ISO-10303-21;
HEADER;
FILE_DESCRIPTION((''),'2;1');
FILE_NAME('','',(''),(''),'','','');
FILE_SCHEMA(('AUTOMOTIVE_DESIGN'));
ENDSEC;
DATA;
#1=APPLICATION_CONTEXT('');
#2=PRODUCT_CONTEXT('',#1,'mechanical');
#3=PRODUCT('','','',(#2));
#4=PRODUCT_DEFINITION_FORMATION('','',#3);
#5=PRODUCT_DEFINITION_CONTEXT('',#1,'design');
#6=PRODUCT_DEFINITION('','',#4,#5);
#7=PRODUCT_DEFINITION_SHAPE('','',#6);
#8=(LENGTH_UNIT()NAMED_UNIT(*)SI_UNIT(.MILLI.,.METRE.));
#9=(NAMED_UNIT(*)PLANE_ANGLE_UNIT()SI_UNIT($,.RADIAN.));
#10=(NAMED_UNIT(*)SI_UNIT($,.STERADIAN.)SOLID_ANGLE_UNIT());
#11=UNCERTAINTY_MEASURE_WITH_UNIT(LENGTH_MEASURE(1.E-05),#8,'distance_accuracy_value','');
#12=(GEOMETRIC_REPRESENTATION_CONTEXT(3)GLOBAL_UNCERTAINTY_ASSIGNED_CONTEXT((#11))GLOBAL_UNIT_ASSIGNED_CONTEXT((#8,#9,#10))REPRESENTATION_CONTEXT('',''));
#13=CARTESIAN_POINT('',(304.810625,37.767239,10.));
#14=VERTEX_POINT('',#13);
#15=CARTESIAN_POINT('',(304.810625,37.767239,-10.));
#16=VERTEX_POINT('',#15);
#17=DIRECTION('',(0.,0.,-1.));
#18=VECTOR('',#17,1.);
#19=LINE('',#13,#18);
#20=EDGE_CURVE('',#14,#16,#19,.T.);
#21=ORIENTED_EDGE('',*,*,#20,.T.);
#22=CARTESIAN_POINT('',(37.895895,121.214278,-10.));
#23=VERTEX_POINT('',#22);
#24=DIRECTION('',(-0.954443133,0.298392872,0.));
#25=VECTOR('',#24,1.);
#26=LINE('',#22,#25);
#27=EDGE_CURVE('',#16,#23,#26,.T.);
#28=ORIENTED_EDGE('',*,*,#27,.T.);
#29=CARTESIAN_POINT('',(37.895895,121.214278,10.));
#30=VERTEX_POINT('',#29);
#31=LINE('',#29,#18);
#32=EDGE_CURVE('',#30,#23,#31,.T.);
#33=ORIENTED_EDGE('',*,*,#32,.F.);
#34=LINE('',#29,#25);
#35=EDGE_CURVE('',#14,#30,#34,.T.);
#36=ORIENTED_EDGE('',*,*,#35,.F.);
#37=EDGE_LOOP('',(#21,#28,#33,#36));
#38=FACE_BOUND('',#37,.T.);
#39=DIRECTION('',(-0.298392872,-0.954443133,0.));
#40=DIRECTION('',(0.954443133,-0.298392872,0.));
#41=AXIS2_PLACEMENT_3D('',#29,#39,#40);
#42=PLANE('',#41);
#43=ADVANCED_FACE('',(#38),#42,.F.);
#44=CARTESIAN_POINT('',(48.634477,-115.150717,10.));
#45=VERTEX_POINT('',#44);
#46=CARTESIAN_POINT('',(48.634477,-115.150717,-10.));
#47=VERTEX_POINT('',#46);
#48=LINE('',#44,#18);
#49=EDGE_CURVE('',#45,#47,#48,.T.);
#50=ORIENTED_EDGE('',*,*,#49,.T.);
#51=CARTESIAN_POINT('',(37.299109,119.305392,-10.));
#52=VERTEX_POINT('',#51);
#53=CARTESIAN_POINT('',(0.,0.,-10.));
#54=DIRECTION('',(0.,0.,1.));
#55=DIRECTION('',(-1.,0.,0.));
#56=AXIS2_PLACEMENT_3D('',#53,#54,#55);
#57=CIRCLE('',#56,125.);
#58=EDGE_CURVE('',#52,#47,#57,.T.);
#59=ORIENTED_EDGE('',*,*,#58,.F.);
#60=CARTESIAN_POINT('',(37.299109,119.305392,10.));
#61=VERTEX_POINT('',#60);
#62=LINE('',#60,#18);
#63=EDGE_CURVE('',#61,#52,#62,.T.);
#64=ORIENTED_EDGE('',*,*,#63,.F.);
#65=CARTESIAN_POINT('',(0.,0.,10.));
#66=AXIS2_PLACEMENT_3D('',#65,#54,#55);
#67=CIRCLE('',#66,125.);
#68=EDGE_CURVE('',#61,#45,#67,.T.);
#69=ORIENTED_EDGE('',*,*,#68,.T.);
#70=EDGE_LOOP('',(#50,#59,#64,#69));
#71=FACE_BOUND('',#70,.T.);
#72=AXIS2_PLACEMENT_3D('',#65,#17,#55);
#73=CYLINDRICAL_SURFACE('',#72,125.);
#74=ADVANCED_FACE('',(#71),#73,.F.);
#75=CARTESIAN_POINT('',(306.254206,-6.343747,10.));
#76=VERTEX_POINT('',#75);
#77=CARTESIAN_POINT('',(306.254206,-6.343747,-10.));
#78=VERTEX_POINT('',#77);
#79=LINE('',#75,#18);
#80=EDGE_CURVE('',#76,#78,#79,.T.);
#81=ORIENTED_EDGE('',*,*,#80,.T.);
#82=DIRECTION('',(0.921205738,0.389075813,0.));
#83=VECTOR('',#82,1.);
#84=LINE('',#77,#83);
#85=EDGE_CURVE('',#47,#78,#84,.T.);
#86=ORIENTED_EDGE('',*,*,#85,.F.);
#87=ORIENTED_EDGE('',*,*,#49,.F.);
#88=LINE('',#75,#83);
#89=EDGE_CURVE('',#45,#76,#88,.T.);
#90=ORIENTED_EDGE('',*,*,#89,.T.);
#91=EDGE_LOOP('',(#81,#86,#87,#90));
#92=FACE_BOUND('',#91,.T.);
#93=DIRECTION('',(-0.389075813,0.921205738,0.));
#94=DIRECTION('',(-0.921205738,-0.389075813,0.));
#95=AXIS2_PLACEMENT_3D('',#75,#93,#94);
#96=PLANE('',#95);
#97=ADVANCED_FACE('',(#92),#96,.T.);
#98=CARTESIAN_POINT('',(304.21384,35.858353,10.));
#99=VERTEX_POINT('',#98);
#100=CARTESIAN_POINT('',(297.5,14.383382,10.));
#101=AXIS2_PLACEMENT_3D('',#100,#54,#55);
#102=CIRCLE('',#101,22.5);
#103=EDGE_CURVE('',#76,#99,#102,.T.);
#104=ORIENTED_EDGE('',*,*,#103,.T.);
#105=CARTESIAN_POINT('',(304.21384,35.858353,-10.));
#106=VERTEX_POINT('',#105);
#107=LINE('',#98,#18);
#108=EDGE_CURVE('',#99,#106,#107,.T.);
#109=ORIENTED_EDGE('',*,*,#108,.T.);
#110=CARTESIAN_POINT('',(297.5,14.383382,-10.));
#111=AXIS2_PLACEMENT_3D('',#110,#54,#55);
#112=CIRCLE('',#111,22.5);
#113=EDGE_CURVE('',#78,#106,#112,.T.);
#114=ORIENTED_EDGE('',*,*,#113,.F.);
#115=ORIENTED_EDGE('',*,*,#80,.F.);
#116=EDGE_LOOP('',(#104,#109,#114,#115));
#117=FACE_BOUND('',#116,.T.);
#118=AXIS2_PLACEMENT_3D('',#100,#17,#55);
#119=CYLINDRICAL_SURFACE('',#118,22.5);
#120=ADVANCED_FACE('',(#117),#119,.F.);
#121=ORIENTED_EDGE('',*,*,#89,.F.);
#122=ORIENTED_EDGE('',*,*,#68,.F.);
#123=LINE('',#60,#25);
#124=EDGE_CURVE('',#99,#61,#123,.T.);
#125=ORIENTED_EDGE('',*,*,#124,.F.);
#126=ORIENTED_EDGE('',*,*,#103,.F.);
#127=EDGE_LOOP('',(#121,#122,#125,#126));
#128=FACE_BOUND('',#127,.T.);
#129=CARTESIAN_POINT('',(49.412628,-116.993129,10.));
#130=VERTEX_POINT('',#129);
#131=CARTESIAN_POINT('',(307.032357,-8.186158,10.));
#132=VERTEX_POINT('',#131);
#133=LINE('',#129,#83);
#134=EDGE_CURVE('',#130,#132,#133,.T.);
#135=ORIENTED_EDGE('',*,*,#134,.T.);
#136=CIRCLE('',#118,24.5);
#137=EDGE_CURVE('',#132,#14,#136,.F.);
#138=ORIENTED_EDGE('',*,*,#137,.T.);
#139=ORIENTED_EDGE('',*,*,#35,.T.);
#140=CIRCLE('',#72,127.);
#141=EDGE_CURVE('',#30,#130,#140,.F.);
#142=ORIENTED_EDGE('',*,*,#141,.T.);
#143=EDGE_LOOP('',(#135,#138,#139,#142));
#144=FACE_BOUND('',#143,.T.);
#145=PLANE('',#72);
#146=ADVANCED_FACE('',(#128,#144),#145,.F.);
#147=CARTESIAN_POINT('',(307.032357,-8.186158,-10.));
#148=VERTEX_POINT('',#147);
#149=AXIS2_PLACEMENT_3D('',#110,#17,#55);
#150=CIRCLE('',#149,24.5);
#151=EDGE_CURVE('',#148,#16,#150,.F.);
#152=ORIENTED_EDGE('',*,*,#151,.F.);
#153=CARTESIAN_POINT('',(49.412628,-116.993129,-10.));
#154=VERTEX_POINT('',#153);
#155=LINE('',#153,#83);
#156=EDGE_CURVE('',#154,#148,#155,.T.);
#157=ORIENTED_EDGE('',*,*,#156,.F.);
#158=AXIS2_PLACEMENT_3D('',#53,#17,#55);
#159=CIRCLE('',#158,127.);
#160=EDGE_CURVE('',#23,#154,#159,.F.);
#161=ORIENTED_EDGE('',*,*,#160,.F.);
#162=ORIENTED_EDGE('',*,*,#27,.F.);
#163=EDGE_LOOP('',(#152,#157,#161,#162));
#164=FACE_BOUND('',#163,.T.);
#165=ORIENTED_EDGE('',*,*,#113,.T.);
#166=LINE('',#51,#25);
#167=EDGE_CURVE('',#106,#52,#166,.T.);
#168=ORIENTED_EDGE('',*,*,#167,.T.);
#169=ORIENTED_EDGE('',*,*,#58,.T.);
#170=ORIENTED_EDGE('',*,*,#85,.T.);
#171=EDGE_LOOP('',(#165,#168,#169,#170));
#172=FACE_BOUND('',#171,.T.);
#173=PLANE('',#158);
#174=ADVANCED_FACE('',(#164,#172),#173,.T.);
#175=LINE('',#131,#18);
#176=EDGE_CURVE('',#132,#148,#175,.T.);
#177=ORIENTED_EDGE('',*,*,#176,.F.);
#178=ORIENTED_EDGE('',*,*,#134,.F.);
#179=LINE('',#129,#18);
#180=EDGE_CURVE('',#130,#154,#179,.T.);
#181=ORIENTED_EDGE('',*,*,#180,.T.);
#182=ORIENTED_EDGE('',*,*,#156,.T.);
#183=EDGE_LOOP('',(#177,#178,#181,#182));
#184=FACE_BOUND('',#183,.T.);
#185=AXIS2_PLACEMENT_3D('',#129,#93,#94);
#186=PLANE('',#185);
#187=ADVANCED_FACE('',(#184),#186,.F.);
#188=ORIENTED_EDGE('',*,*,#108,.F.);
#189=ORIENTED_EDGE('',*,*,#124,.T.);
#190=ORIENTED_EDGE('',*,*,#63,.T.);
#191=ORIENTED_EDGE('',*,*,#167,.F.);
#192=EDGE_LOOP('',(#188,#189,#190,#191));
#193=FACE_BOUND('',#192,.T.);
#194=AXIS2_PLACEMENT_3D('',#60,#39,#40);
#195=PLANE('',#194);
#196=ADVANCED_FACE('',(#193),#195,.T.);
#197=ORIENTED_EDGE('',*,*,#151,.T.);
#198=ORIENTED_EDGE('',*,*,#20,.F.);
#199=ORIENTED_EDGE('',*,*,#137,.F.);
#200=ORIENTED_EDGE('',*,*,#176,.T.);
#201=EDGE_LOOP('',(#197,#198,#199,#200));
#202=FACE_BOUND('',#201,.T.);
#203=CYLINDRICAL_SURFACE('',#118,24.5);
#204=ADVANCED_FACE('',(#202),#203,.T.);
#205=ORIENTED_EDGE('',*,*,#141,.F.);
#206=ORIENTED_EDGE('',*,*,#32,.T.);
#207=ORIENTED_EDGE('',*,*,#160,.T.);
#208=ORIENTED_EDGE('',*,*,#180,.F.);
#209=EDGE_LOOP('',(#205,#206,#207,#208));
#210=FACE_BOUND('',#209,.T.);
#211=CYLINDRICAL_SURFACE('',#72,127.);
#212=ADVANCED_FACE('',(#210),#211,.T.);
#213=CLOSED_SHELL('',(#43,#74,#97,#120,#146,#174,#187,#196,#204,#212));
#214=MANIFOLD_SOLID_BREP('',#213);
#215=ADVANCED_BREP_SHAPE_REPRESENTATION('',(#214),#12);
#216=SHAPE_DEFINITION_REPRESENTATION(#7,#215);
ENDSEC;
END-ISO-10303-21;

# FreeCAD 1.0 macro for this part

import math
import FreeCAD as App
import Part
import Sketcher

V = App.Vector
Q = App.Units.Quantity

doc = App.newDocument("Part")
params = doc.addObject("Spreadsheet::Sheet", "Params")
for row, (alias, value) in enumerate([
    ("sketch1_radius", "127 mm"),
    ("sketch1_radius2", "125 mm"),
    ("sketch1_radius3", "24.5 mm"),
    ("pad1_length", "20 mm"),
], start=1):
    params.set(f"A{row}", alias)
    params.set(f"B{row}", "=" + value)
    params.setAlias(f"B{row}", alias)

body = doc.addObject("PartDesign::Body", "Body")

sketch1 = doc.addObject("Sketcher::SketchObject", "Sketch")
body.addObject(sketch1)
sketch1.AttachmentSupport = (doc.XY_Plane, [""])
sketch1.MapMode = "FlatFace"
sketch1.addGeometry([
    Part.LineSegment(V(49.412628, -116.993129, 0), V(307.032357, -8.186158, 0)),
    Part.ArcOfCircle(Part.Circle(V(297.5, 14.383382, 0), V(0, 0, 1), 24.5), math.radians(-67.102994), math.radians(72.638899)),
    Part.LineSegment(V(304.810625, 37.767239, 0), V(37.895895, 121.214278, 0)),
    Part.ArcOfCircle(Part.Circle(V(0, 0, 0), V(0, 0, 1), 127), math.radians(72.638899), math.radians(292.897006)),
    Part.LineSegment(V(306.254206, -6.343747, 0), V(48.634477, -115.150717, 0)),
    Part.ArcOfCircle(Part.Circle(V(0, 0, 0), V(0, 0, 1), 125), math.radians(72.638899), math.radians(292.897006)),
    Part.LineSegment(V(37.299109, 119.305392, 0), V(304.21384, 35.858353, 0)),
    Part.ArcOfCircle(Part.Circle(V(297.5, 14.383382, 0), V(0, 0, 1), 22.5), math.radians(-67.102994), math.radians(72.638899)),
], False)
sketch1.addConstraint([
    Sketcher.Constraint("Tangent", 0, 2, 1, 1),
    Sketcher.Constraint("Tangent", 1, 2, 2, 1),
    Sketcher.Constraint("Tangent", 2, 2, 3, 1),
    Sketcher.Constraint("Tangent", 3, 2, 0, 1),
    Sketcher.Constraint("Tangent", 4, 2, 5, 2),
    Sketcher.Constraint("Tangent", 5, 1, 6, 1),
    Sketcher.Constraint("Tangent", 6, 2, 7, 2),
    Sketcher.Constraint("Tangent", 7, 1, 4, 1),
    Sketcher.Constraint("Coincident", 3, 3, -1, 1),
    Sketcher.Constraint("Coincident", 5, 3, -1, 1),
    Sketcher.Constraint("Coincident", 7, 3, 1, 3),
    Sketcher.Constraint("Parallel", 0, 4),
    Sketcher.Constraint("Radius", 3, Q("127 mm")),
    Sketcher.Constraint("Radius", 5, Q("125 mm")),
    Sketcher.Constraint("Radius", 1, Q("24.5 mm")),
    Sketcher.Constraint("DistanceX", -1, 1, 1, 3, Q("297.5 mm")),
    Sketcher.Constraint("DistanceY", 0, 2, -1, 1, Q("8.186158 mm")),
])
sketch1.setExpression("Constraints[12]", "Params.sketch1_radius")
sketch1.setExpression("Constraints[13]", "Params.sketch1_radius2")
sketch1.setExpression("Constraints[14]", "Params.sketch1_radius3")
pad1 = doc.addObject("PartDesign::Pad", "Pad")
body.addObject(pad1)
pad1.Profile = sketch1
pad1.setExpression("Length", "Params.pad1_length")
pad1.Midplane = True

doc.recompute()
